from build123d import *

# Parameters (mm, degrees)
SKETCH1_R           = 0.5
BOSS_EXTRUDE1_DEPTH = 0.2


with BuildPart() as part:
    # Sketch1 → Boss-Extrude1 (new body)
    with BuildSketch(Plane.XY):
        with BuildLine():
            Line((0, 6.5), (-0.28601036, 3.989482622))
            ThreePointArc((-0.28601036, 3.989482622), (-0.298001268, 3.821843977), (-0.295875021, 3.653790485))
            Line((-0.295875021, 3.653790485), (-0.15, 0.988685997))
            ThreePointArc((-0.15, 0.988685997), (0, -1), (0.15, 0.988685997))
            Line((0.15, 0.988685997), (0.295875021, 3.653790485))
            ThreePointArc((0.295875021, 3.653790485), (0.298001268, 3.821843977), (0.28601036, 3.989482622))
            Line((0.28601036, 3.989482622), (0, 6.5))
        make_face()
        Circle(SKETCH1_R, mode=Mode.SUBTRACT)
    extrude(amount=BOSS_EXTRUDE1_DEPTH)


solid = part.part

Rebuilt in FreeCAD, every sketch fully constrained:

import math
import FreeCAD as App
import Part
import Sketcher

V = App.Vector
Q = App.Units.Quantity

doc = App.newDocument("Part")
body = doc.addObject("PartDesign::Body", "Body")

sketch1 = body.newObject("Sketcher::SketchObject", "Sketch")
sketch1.AttachmentSupport = (doc.getObject("XY_Plane"), [""])
sketch1.MapMode = "FlatFace"
sketch1.addGeometry([
    Part.LineSegment(V(0, 6.5, 0), V(-0.29, 3.99, 0)),
    Part.ArcOfCircle(Part.Circle(V(1.7, 3.76, 0), V(0, 0, 1), 2), math.radians(173.5), math.radians(183.13)),
    Part.LineSegment(V(-0.3, 3.65, 0), V(-0.15, 0.99, 0)),
    Part.ArcOfCircle(Part.Circle(V(0, 0, 0), V(0, 0, 1), 1), math.radians(99), math.radians(441)),
    Part.LineSegment(V(0.15, 0.99, 0), V(0.3, 3.65, 0)),
    Part.ArcOfCircle(Part.Circle(V(-1.7, 3.76, 0), V(0, 0, 1), 2), math.radians(-3.13), math.radians(6.5)),
    Part.LineSegment(V(0.29, 3.99, 0), V(0, 6.5, 0)),
    Part.Circle(V(0, 0, 0), V(0, 0, 1), 0.5),
], False)
sketch1.addConstraint([
    Sketcher.Constraint("Tangent", 0, 2, 1, 1),
    Sketcher.Constraint("Tangent", 1, 2, 2, 1),
    Sketcher.Constraint("Coincident", 2, 2, 3, 1),
    Sketcher.Constraint("Coincident", 3, 2, 4, 1),
    Sketcher.Constraint("Tangent", 4, 2, 5, 1),
    Sketcher.Constraint("Tangent", 5, 2, 6, 1),
    Sketcher.Constraint("Coincident", 6, 2, 0, 1),
    Sketcher.Constraint("Coincident", 3, 3, -1, 1),
    Sketcher.Constraint("Coincident", 7, 3, -1, 1),
    Sketcher.Constraint("Equal", 1, 5),
    Sketcher.Constraint("Symmetric", 1, 3, 5, 3, -2),
    Sketcher.Constraint("PointOnObject", 6, 2, -2),
    Sketcher.Constraint("Horizontal", 2, 2, 3, 2),
    Sketcher.Constraint("Diameter", 7, Q("1 mm")),
    Sketcher.Constraint("Radius", 1, Q("2 mm")),
    Sketcher.Constraint("Radius", 3, Q("1 mm")),
    Sketcher.Constraint("DistanceY", -1, 1, 6, 2, Q("6.5 mm")),
    Sketcher.Constraint("DistanceX", 2, 2, 3, 2, Q("0.3 mm")),
    Sketcher.Constraint("DistanceX", 0, 2, -1, 1, Q("0.28601 mm")),
    Sketcher.Constraint("DistanceY", -1, 1, 1, 2, Q("3.65379 mm")),
])
pad1 = body.newObject("PartDesign::Pad", "Pad")
pad1.Profile = sketch1
pad1.Length = 0.2

doc.recompute()
